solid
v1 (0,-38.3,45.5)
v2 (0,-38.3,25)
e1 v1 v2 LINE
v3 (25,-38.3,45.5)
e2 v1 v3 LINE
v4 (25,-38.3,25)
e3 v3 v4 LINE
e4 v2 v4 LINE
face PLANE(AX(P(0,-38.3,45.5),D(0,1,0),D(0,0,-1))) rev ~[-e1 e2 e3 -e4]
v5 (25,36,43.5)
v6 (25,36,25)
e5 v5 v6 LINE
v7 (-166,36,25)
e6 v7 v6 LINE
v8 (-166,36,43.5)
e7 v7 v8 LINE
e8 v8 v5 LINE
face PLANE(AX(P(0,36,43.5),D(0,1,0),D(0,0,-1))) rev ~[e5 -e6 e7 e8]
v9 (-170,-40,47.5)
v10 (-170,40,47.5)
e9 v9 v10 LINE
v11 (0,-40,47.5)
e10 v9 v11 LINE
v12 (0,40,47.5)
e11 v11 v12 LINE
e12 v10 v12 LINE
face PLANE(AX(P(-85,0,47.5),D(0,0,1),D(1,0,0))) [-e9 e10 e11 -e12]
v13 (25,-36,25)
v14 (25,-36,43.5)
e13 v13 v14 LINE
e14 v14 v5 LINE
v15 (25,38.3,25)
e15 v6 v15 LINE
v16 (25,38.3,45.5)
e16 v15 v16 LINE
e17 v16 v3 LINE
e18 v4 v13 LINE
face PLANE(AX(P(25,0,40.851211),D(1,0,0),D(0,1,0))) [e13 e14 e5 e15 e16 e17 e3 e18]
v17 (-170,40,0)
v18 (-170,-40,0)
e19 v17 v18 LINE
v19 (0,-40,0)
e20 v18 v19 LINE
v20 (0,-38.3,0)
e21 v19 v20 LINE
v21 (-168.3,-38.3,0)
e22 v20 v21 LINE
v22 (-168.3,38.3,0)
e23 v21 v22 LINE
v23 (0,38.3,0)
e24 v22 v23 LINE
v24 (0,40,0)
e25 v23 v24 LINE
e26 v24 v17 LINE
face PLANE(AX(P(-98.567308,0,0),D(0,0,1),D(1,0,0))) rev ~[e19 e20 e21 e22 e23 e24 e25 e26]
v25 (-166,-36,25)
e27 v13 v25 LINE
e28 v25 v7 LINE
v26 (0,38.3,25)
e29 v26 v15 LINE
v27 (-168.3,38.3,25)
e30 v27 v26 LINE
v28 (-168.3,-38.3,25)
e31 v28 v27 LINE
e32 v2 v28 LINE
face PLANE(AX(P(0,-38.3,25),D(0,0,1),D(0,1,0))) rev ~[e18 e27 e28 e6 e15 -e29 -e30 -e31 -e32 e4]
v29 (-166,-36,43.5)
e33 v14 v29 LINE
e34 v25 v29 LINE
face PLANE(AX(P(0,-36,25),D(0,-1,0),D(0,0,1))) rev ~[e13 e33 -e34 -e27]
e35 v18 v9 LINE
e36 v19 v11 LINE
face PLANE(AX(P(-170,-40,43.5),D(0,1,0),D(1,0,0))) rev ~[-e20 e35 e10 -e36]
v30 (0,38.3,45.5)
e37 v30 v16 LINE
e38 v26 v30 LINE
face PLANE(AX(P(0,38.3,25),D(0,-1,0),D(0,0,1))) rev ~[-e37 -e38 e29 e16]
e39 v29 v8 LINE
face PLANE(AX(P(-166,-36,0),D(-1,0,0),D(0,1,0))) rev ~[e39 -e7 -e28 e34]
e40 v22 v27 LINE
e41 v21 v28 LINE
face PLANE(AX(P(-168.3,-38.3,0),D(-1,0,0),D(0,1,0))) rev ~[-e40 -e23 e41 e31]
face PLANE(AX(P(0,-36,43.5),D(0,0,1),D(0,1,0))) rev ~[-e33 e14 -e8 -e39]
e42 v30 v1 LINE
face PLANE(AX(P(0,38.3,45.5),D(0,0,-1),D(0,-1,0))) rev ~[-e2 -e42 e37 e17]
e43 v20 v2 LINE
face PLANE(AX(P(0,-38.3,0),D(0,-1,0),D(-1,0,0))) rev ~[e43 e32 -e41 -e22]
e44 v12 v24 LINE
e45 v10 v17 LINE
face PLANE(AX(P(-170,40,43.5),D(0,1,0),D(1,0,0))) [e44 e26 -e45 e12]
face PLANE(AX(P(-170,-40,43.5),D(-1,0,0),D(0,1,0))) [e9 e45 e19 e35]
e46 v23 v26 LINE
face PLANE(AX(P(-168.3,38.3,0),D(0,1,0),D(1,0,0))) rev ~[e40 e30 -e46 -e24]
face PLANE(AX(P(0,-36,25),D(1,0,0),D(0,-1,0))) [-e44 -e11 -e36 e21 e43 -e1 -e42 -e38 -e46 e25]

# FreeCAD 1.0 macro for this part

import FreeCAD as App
import Part
import Sketcher
from FreeCAD import Vector
Q = App.Units.Quantity


def add_polygon(sketch, points):
    """Adds a closed chain of lines whose ends are joined by coincident constraints."""
    first, n = sketch.GeometryCount, len(points)
    for a, b in zip(points, points[1:] + points[:1]):
        sketch.addGeometry(Part.LineSegment(App.Vector(*a, 0), App.Vector(*b, 0)), False)
    for i in range(n):
        sketch.addConstraint(Sketcher.Constraint("Coincident", first + i, 2, first + (i + 1) % n, 1))

doc = App.newDocument("Part")
body = doc.addObject("PartDesign::Body", "Body")

sketch1 = doc.addObject("Sketcher::SketchObject", "Sketch")
body.addObject(sketch1)
sketch1.AttachmentSupport = (doc.XY_Plane, [""])
sketch1.MapMode = "FlatFace"
add_polygon(sketch1, [(-166, 36), (0, 36), (0, 40), (-170, 40), (-170, -40), (0, -40), (0, -36), (-166, -36)])
sketch1.addConstraint([
    Sketcher.Constraint("Horizontal", 0),
    Sketcher.Constraint("Vertical", 1),
    Sketcher.Constraint("Horizontal", 2),
    Sketcher.Constraint("Vertical", 3),
    Sketcher.Constraint("Horizontal", 4),
    Sketcher.Constraint("Vertical", 5),
    Sketcher.Constraint("Horizontal", 6),
    Sketcher.Constraint("Vertical", 7),
    Sketcher.Constraint("Symmetric", 1, 2, 4, 2, -1, 1),
    Sketcher.Constraint("Symmetric", 0, 2, 5, 2, -1),
    Sketcher.Constraint("DistanceX", 0, 1, 0, 2, Q("166 mm")),
    Sketcher.Constraint("DistanceX", 2, 2, 2, 1, Q("170 mm")),
    Sketcher.Constraint("DistanceY", 1, 1, 1, 2, Q("4 mm")),
    Sketcher.Constraint("DistanceY", 3, 2, 3, 1, Q("80 mm")),
])
pad1 = doc.addObject("PartDesign::Pad", "Pad")
body.addObject(pad1)
pad1.Profile = sketch1
pad1.Length = 43.5

sketch2 = doc.addObject("Sketcher::SketchObject", "Sketch001")
body.addObject(sketch2)
sketch2.AttachmentSupport = (doc.XY_Plane, [""])
sketch2.MapMode = "FlatFace"
sketch2.AttachmentOffset = App.Placement(Vector(0, 0, 43.5), App.Rotation())
add_polygon(sketch2, [(-170, 40), (-170, -40), (0, -40), (0, 40)])
sketch2.addConstraint([
    Sketcher.Constraint("Vertical", 0),
    Sketcher.Constraint("Horizontal", 1),
    Sketcher.Constraint("Vertical", 2),
    Sketcher.Constraint("Horizontal", 3),
    Sketcher.Constraint("Symmetric", 1, 2, 2, 2, -1, 1),
    Sketcher.Constraint("DistanceX", 1, 1, 1, 2, Q("170 mm")),
    Sketcher.Constraint("DistanceY", 0, 2, 0, 1, Q("80 mm")),
])
pad2 = doc.addObject("PartDesign::Pad", "Pad001")
body.addObject(pad2)
pad2.Profile = sketch2
pad2.Length = 4

sketch3 = doc.addObject("Sketcher::SketchObject", "Sketch002")
body.addObject(sketch3)
sketch3.AttachmentSupport = (doc.XY_Plane, [""])
sketch3.MapMode = "FlatFace"
add_polygon(sketch3, [(0, -36), (-166, -36), (-166, 36), (0, 36), (0, 38), (-168, 38), (-168, -38), (0, -38)])
sketch3.addConstraint([
    Sketcher.Constraint("Horizontal", 0),
    Sketcher.Constraint("Vertical", 1),
    Sketcher.Constraint("Horizontal", 2),
    Sketcher.Constraint("Vertical", 3),
    Sketcher.Constraint("Horizontal", 4),
    Sketcher.Constraint("Vertical", 5),
    Sketcher.Constraint("Horizontal", 6),
    Sketcher.Constraint("Vertical", 7),
    Sketcher.Constraint("Symmetric", 3, 2, 6, 2, -1, 1),
    Sketcher.Constraint("Symmetric", 2, 2, 7, 2, -1),
    Sketcher.Constraint("DistanceX", 0, 2, 0, 1, Q("166 mm")),
    Sketcher.Constraint("DistanceX", 4, 2, 4, 1, Q("168 mm")),
    Sketcher.Constraint("DistanceY", 1, 1, 1, 2, Q("72 mm")),
    Sketcher.Constraint("DistanceY", 3, 1, 3, 2, Q("2 mm")),
])
pocket1 = doc.addObject("PartDesign::Pocket", "Pocket")
body.addObject(pocket1)
pocket1.Profile = sketch3
pocket1.Length = 25
pocket1.Reversed = True

sketch4 = doc.addObject("Sketcher::SketchObject", "Sketch003")
body.addObject(sketch4)
sketch4.AttachmentSupport = (doc.XY_Plane, [""])
sketch4.MapMode = "FlatFace"
add_polygon(sketch4, [(-25, -36), (-25, -38), (0, -38), (0, -36)])
add_polygon(sketch4, [(-25, 38), (-25, 36), (0, 36), (0, 38)])
sketch4.addConstraint([
    Sketcher.Constraint("Vertical", 0),
    Sketcher.Constraint("Horizontal", 1),
    Sketcher.Constraint("Vertical", 2),
    Sketcher.Constraint("Horizontal", 3),
    Sketcher.Constraint("Vertical", 4),
    Sketcher.Constraint("Horizontal", 5),
    Sketcher.Constraint("Vertical", 6),
    Sketcher.Constraint("Horizontal", 7),
    Sketcher.Constraint("Symmetric", 2, 2, 5, 2, -1, 1),
    Sketcher.Constraint("Symmetric", 1, 2, 6, 2, -1),
    Sketcher.Constraint("Vertical", 3, 2, 4, 2),
    Sketcher.Constraint("DistanceX", 1, 1, 1, 2, Q("25 mm")),
    Sketcher.Constraint("DistanceY", 0, 2, 0, 1, Q("2 mm")),
    Sketcher.Constraint("DistanceY", 0, 2, -1, 1, Q("38 mm")),
])
pocket2 = doc.addObject("PartDesign::Pocket", "Pocket001")
body.addObject(pocket2)
pocket2.Profile = sketch4
pocket2.Length = 43.5
pocket2.Reversed = True

sketch5 = doc.addObject("Sketcher::SketchObject", "Sketch004")
body.addObject(sketch5)
sketch5.AttachmentSupport = (doc.XY_Plane, [""])
sketch5.MapMode = "FlatFace"
add_polygon(sketch5, [(-168, 38), (-168, -38), (0, -38), (0, -38.3), (-168.3, -38.3), (-168.3, 38.3), (0, 38.3), (0, 38)])
sketch5.addConstraint([
    Sketcher.Constraint("Vertical", 0),
    Sketcher.Constraint("Horizontal", 1),
    Sketcher.Constraint("Vertical", 2),
    Sketcher.Constraint("Horizontal", 3),
    Sketcher.Constraint("Vertical", 4),
    Sketcher.Constraint("Horizontal", 5),
    Sketcher.Constraint("Vertical", 6),
    Sketcher.Constraint("Horizontal", 7),
    Sketcher.Constraint("Symmetric", 2, 2, 5, 2, -1, 1),
    Sketcher.Constraint("Symmetric", 1, 2, 6, 2, -1),
    Sketcher.Constraint("DistanceX", 1, 1, 1, 2, Q("168 mm")),
    Sketcher.Constraint("DistanceY", 0, 2, 0, 1, Q("76 mm")),
    Sketcher.Constraint("DistanceX", 3, 2, 3, 1, Q("168.3 mm")),
    Sketcher.Constraint("DistanceY", 2, 2, 2, 1, Q("0.3 mm")),
])
pocket3 = doc.addObject("PartDesign::Pocket", "Pocket002")
body.addObject(pocket3)
pocket3.Profile = sketch5
pocket3.Length = 25
pocket3.Reversed = True

sketch6 = doc.addObject("Sketcher::SketchObject", "Sketch005")
body.addObject(sketch6)
sketch6.AttachmentSupport = (doc.XY_Plane, [""])
sketch6.MapMode = "FlatFace"
sketch6.AttachmentOffset = App.Placement(Vector(0, 0, 25), App.Rotation())
add_polygon(sketch6, [(-25, -38.3), (-25, -38), (0, -38), (0, -38.3)])
sketch6.addConstraint([
    Sketcher.Constraint("Vertical", 0),
    Sketcher.Constraint("Horizontal", 1),
    Sketcher.Constraint("Vertical", 2),
    Sketcher.Constraint("Horizontal", 3),
    Sketcher.Constraint("PointOnObject", 1, 2, -2),
    Sketcher.Constraint("DistanceX", 1, 1, 1, 2, Q("25 mm")),
    Sketcher.Constraint("DistanceY", 0, 1, 0, 2, Q("0.3 mm")),
    Sketcher.Constraint("DistanceY", 0, 2, -1, 1, Q("38 mm")),
])
pocket4 = doc.addObject("PartDesign::Pocket", "Pocket003")
body.addObject(pocket4)
pocket4.Profile = sketch6
pocket4.Length = 18.5
pocket4.Reversed = True

sketch7 = doc.addObject("Sketcher::SketchObject", "Sketch006")
body.addObject(sketch7)
sketch7.AttachmentSupport = (doc.XY_Plane, [""])
sketch7.MapMode = "FlatFace"
sketch7.AttachmentOffset = App.Placement(Vector(0, 0, 25), App.Rotation())
add_polygon(sketch7, [(-25, -38.3), (-25, -36), (0, -36), (0, -38.3)])
add_polygon(sketch7, [(-25, 36), (-25, 38), (0, 38), (0, 36)])
sketch7.addConstraint([
    Sketcher.Constraint("Vertical", 0),
    Sketcher.Constraint("Horizontal", 1),
    Sketcher.Constraint("Vertical", 2),
    Sketcher.Constraint("Horizontal", 3),
    Sketcher.Constraint("Vertical", 4),
    Sketcher.Constraint("Horizontal", 5),
    Sketcher.Constraint("Vertical", 6),
    Sketcher.Constraint("Horizontal", 7),
    Sketcher.Constraint("Symmetric", 1, 2, 6, 2, -1, 1),
    Sketcher.Constraint("PointOnObject", 1, 2, -2),
    Sketcher.Constraint("Vertical", 3, 2, 4, 2),
    Sketcher.Constraint("DistanceX", 1, 1, 1, 2, Q("25 mm")),
    Sketcher.Constraint("DistanceY", 4, 1, 4, 2, Q("2 mm")),
    Sketcher.Constraint("DistanceY", 0, 1, 0, 2, Q("2.3 mm")),
    Sketcher.Constraint("DistanceY", 0, 2, -1, 1, Q("36 mm")),
])
pad3 = doc.addObject("PartDesign::Pad", "Pad002")
body.addObject(pad3)
pad3.Profile = sketch7
pad3.Length = 18.5

sketch8 = doc.addObject("Sketcher::SketchObject", "Sketch007")
body.addObject(sketch8)
sketch8.AttachmentSupport = (doc.YZ_Plane, [""])
sketch8.MapMode = "FlatFace"
add_polygon(sketch8, [(-36, 43.5), (36, 43.5), (36, 25), (38.3, 25), (38.3, 45.5), (-38.3, 45.5), (-38.3, 25), (-36, 25)])
sketch8.addConstraint([
    Sketcher.Constraint("Horizontal", 0),
    Sketcher.Constraint("Vertical", 1),
    Sketcher.Constraint("Horizontal", 2),
    Sketcher.Constraint("Vertical", 3),
    Sketcher.Constraint("Horizontal", 4),
    Sketcher.Constraint("Vertical", 5),
    Sketcher.Constraint("Horizontal", 6),
    Sketcher.Constraint("Vertical", 7),
    Sketcher.Constraint("Symmetric", 2, 2, 5, 2, -2),
    Sketcher.Constraint("Equal", 2, 6),
    Sketcher.Constraint("DistanceX", 0, 1, 0, 2, Q("72 mm")),
    Sketcher.Constraint("DistanceX", 2, 1, 2, 2, Q("2.3 mm")),
    Sketcher.Constraint("DistanceY", 1, 2, 1, 1, Q("18.5 mm")),
    Sketcher.Constraint("DistanceY", 3, 1, 3, 2, Q("20.5 mm")),
    Sketcher.Constraint("DistanceY", -1, 1, 1, 2, Q("25 mm")),
])
pad4 = doc.addObject("PartDesign::Pad", "Pad003")
body.addObject(pad4)
pad4.Profile = sketch8
pad4.Length = 25

doc.recompute()
